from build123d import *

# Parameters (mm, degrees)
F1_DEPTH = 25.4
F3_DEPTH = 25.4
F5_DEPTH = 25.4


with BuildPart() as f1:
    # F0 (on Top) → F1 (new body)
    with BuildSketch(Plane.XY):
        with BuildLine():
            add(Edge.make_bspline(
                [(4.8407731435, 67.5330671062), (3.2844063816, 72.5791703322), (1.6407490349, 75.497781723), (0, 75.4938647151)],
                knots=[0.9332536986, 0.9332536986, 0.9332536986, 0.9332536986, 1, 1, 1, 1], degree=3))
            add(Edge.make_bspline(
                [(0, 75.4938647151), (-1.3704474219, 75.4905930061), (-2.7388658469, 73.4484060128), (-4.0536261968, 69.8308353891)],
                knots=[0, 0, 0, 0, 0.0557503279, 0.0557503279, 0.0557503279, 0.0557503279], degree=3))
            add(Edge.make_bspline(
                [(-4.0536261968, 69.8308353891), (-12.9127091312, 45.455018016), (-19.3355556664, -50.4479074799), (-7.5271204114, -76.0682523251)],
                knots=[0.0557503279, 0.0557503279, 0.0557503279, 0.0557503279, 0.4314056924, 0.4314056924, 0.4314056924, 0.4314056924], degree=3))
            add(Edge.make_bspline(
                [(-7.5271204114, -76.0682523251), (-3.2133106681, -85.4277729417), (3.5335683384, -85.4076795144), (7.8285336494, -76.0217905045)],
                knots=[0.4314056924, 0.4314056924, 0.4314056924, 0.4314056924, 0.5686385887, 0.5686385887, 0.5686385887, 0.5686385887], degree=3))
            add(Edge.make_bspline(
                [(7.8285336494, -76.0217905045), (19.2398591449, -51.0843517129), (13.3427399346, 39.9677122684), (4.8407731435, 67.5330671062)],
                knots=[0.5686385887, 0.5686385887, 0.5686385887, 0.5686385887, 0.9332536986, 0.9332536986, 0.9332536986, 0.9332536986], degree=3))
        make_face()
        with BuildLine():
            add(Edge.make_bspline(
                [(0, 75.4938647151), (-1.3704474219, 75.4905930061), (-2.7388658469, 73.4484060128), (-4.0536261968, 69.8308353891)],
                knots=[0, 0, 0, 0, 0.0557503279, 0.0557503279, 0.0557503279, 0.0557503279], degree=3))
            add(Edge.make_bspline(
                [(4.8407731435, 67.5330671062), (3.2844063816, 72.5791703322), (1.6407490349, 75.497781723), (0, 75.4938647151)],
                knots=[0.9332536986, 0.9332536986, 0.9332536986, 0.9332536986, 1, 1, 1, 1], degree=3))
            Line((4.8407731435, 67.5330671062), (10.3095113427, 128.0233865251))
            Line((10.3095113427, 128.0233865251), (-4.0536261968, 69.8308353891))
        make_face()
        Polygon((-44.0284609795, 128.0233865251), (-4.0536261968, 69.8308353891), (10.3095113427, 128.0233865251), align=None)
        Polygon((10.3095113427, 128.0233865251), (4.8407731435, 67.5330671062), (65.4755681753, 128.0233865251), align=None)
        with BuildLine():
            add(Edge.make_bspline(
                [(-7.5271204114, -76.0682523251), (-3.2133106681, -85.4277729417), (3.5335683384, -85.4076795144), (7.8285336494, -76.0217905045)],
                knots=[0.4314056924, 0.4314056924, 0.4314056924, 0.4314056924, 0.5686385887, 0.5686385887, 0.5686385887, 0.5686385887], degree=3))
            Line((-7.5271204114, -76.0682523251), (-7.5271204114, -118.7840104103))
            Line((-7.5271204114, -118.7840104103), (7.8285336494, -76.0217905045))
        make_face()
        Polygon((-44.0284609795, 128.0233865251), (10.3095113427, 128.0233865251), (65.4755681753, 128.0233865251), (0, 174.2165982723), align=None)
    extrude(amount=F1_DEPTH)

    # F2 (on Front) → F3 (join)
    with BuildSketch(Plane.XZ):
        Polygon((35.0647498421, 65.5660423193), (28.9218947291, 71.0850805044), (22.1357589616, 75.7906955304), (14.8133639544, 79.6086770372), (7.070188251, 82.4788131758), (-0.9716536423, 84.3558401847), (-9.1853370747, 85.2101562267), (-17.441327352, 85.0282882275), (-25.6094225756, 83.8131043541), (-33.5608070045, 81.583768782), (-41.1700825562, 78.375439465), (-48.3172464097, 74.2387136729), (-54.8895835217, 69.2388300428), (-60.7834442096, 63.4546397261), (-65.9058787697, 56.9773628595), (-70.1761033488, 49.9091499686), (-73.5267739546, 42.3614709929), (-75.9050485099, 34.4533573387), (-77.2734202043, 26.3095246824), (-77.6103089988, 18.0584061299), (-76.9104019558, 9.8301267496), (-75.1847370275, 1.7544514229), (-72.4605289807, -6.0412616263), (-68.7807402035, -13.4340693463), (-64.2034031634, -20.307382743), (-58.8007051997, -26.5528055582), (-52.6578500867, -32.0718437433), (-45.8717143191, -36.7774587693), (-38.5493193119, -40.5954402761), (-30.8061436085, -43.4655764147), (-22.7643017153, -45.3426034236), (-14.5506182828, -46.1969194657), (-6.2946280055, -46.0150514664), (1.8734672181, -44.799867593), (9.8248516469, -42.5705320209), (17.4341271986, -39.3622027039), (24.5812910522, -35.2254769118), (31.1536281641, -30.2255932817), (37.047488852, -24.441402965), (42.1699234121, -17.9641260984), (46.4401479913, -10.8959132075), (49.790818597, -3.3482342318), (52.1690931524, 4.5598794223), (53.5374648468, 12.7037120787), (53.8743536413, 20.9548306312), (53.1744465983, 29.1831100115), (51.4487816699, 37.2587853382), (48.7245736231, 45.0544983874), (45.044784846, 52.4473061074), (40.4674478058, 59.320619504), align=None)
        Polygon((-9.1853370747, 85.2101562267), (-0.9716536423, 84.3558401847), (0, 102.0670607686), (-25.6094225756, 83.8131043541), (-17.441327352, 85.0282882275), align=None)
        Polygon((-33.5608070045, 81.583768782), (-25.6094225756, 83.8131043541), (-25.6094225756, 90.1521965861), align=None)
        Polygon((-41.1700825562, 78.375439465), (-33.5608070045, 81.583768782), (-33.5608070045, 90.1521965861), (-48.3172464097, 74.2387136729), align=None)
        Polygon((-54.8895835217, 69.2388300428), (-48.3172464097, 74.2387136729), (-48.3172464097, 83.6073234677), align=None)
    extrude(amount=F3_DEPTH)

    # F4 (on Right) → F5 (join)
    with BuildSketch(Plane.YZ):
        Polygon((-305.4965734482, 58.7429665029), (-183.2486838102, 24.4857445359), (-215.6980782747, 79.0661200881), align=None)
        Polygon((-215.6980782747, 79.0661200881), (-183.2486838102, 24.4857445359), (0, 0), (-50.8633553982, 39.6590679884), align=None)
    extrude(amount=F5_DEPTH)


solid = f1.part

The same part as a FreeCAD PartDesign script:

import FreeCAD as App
import Part
import Sketcher
Q = App.Units.Quantity


def add_polygon(sketch, points):
    """Adds a closed chain of lines whose ends are joined by coincident constraints."""
    first, n = sketch.GeometryCount, len(points)
    for a, b in zip(points, points[1:] + points[:1]):
        sketch.addGeometry(Part.LineSegment(App.Vector(*a, 0), App.Vector(*b, 0)), False)
    for i in range(n):
        sketch.addConstraint(Sketcher.Constraint("Coincident", first + i, 2, first + (i + 1) % n, 1))

doc = App.newDocument("Part")
body = doc.addObject("PartDesign::Body", "Body")

sketch1 = body.newObject("Sketcher::SketchObject", "Sketch")
sketch1.AttachmentSupport = (doc.getObject("XY_Plane"), [""])
sketch1.MapMode = "FlatFace"
sketch1.addGeometry([
    Part.BSplineCurve([App.Vector(-4.053626, 69.830835, 0), App.Vector(-12.912709, 45.455018, 0), App.Vector(-19.335556, -50.447907, 0), App.Vector(-7.52712, -76.068252, 0)], [4, 4], [0.055750328, 0.431405692], False, 3, [1, 1, 1, 1], False),
    Part.LineSegment(App.Vector(-7.52712, -76.068252, 0), App.Vector(-7.52712, -118.78401, 0)),
    Part.LineSegment(App.Vector(-7.52712, -118.78401, 0), App.Vector(7.828534, -76.021791, 0)),
    Part.BSplineCurve([App.Vector(7.828534, -76.021791, 0), App.Vector(19.239859, -51.084352, 0), App.Vector(13.34274, 39.967712, 0), App.Vector(4.840773, 67.533067, 0)], [4, 4], [0.568638589, 0.933253699], False, 3, [1, 1, 1, 1], False),
    Part.LineSegment(App.Vector(4.840773, 67.533067, 0), App.Vector(65.475568, 128.023387, 0)),
    Part.LineSegment(App.Vector(65.475568, 128.023387, 0), App.Vector(0, 174.216598, 0)),
    Part.LineSegment(App.Vector(0, 174.216598, 0), App.Vector(-44.028461, 128.023387, 0)),
    Part.LineSegment(App.Vector(-44.028461, 128.023387, 0), App.Vector(-4.053626, 69.830835, 0)),
], False)
sketch1.addConstraint([
    Sketcher.Constraint("Block", 0),
    Sketcher.Constraint("Block", 3),
    Sketcher.Constraint("Coincident", 0, 2, 1, 1),
    Sketcher.Constraint("Coincident", 1, 2, 2, 1),
    Sketcher.Constraint("Coincident", 2, 2, 3, 1),
    Sketcher.Constraint("Coincident", 3, 2, 4, 1),
    Sketcher.Constraint("Coincident", 4, 2, 5, 1),
    Sketcher.Constraint("Coincident", 5, 2, 6, 1),
    Sketcher.Constraint("Coincident", 6, 2, 7, 1),
    Sketcher.Constraint("Coincident", 7, 2, 0, 1),
    Sketcher.Constraint("Vertical", 1),
    Sketcher.Constraint("PointOnObject", 5, 2, -2),
    Sketcher.Constraint("Horizontal", 4, 2, 6, 2),
    Sketcher.Constraint("DistanceY", 1, 2, 1, 1, 42.715758),
    Sketcher.Constraint("DistanceY", -1, 1, 5, 2, 174.216598),
    Sketcher.Constraint("Distance", 4, 85.648451),
    Sketcher.Constraint("DistanceX", -1, 1, 4, 2, 65.475568),
    Sketcher.Constraint("DistanceX", 6, 2, -1, 1, 44.028461),
])
pad1 = body.newObject("PartDesign::Pad", "Pad")
pad1.Profile = sketch1
pad1.Length = Q("1 in")

sketch2 = body.newObject("Sketcher::SketchObject", "Sketch001")
sketch2.AttachmentSupport = (doc.getObject("XZ_Plane"), [""])
sketch2.MapMode = "FlatFace"
add_polygon(sketch2, [(35.06475, 65.566042), (28.921895, 71.085081), (22.135759, 75.790696), (14.813364, 79.608677), (7.070188, 82.478813), (-0.971654, 84.35584), (0, 102.067061), (-25.609423, 83.813104), (-25.609423, 90.152197), (-33.560807, 81.583769), (-33.560807, 90.152197), (-48.317246, 74.238714), (-48.317246, 83.607323), (-54.889584, 69.23883), (-60.783444, 63.45464), (-65.905879, 56.977363), (-70.176103, 49.90915), (-73.526774, 42.361471), (-75.905049, 34.453357), (-77.27342, 26.309525), (-77.610309, 18.058406), (-76.910402, 9.830127), (-75.184737, 1.754451), (-72.460529, -6.041262), (-68.78074, -13.434069), (-64.203403, -20.307383), (-58.800705, -26.552806), (-52.65785, -32.071844), (-45.871714, -36.777459), (-38.549319, -40.59544), (-30.806144, -43.465576), (-22.764302, -45.342603), (-14.550618, -46.196919), (-6.294628, -46.015051), (1.873467, -44.799868), (9.824852, -42.570532), (17.434127, -39.362203), (24.581291, -35.225477), (31.153628, -30.225593), (37.047489, -24.441403), (42.169923, -17.964126), (46.440148, -10.895913), (49.790819, -3.348234), (52.169093, 4.559879), (53.537465, 12.703712), (53.874354, 20.954831), (53.174447, 29.18311), (51.448782, 37.258785), (48.724574, 45.054498), (45.044785, 52.447306), (40.467448, 59.32062)])
sketch2.addConstraint([
    Sketcher.Constraint("Vertical", 7),
    Sketcher.Constraint("Vertical", 9),
    Sketcher.Constraint("Vertical", 11),
    Sketcher.Constraint("PointOnObject", 5, 2, -2),
    Sketcher.Constraint("Parallel", 0, 26),
    Sketcher.Constraint("Parallel", 1, 27),
    Sketcher.Constraint("Parallel", 2, 28),
    Sketcher.Constraint("Parallel", 3, 29),
    Sketcher.Constraint("Parallel", 4, 30),
    Sketcher.Constraint("Parallel", 13, 38),
    Sketcher.Constraint("Parallel", 14, 39),
    Sketcher.Constraint("Parallel", 15, 40),
    Sketcher.Constraint("Parallel", 16, 41),
    Sketcher.Constraint("Parallel", 17, 42),
    Sketcher.Constraint("Parallel", 18, 43),
    Sketcher.Constraint("Parallel", 19, 44),
    Sketcher.Constraint("Parallel", 20, 45),
    Sketcher.Constraint("Parallel", 21, 46),
    Sketcher.Constraint("Parallel", 22, 47),
    Sketcher.Constraint("Parallel", 23, 48),
    Sketcher.Constraint("Parallel", 24, 49),
    Sketcher.Constraint("Parallel", 25, 50),
    Sketcher.Constraint("Horizontal", 7, 2, 9, 2),
    Sketcher.Constraint("Equal", 0, 1),
    Sketcher.Constraint("Equal", 1, 2),
    Sketcher.Constraint("Equal", 2, 3),
    Sketcher.Constraint("Equal", 3, 4),
    Sketcher.Constraint("Equal", 4, 13),
    Sketcher.Constraint("Equal", 13, 14),
    Sketcher.Constraint("Equal", 14, 15),
    Sketcher.Constraint("Equal", 15, 16),
    Sketcher.Constraint("Equal", 16, 17),
    Sketcher.Constraint("Equal", 17, 18),
    Sketcher.Constraint("Equal", 18, 19),
    Sketcher.Constraint("Equal", 19, 20),
    Sketcher.Constraint("Equal", 20, 21),
    Sketcher.Constraint("Equal", 21, 22),
    Sketcher.Constraint("Equal", 22, 23),
    Sketcher.Constraint("Equal", 23, 24),
    Sketcher.Constraint("Equal", 24, 25),
    Sketcher.Constraint("Equal", 25, 26),
    Sketcher.Constraint("Equal", 26, 27),
    Sketcher.Constraint("Equal", 27, 28),
    Sketcher.Constraint("Equal", 28, 29),
    Sketcher.Constraint("Equal", 29, 30),
    Sketcher.Constraint("Equal", 30, 31),
    Sketcher.Constraint("Equal", 31, 32),
    Sketcher.Constraint("Equal", 32, 33),
    Sketcher.Constraint("Equal", 33, 34),
    Sketcher.Constraint("Equal", 34, 35),
    Sketcher.Constraint("Equal", 35, 36),
    Sketcher.Constraint("Equal", 36, 37),
    Sketcher.Constraint("Equal", 37, 38),
    Sketcher.Constraint("Equal", 38, 39),
    Sketcher.Constraint("Equal", 39, 40),
    Sketcher.Constraint("Equal", 40, 41),
    Sketcher.Constraint("Equal", 41, 42),
    Sketcher.Constraint("Equal", 42, 43),
    Sketcher.Constraint("Equal", 43, 44),
    Sketcher.Constraint("Equal", 44, 45),
    Sketcher.Constraint("Equal", 45, 46),
    Sketcher.Constraint("Equal", 46, 47),
    Sketcher.Constraint("Equal", 47, 48),
    Sketcher.Constraint("Equal", 48, 49),
    Sketcher.Constraint("Equal", 49, 50),
    Sketcher.Constraint("DistanceY", -1, 1, 2, 2, Q("3.1341999 in")),
    Sketcher.Constraint("DistanceY", 11, 1, 11, 2, 9.36861),
    Sketcher.Constraint("DistanceX", 20, 2, -1, 1, 76.910402),
    Sketcher.Constraint("DistanceX", 30, 2, -1, 1, 22.764302),
    Sketcher.Constraint("DistanceY", -1, 1, 47, 2, 45.054498),
    Sketcher.Constraint("DistanceX", 20, 2, 15, 2, 6.734299),
    Sketcher.Constraint("DistanceX", 20, 2, 24, 2, 12.706999),
    Sketcher.Constraint("DistanceX", 28, 2, 31, 2, 23.998701),
    Sketcher.Constraint("DistanceY", 30, 2, 35, 2, 5.980401),
    Sketcher.Constraint("DistanceX", 35, 2, 37, 2, 13.719501),
    Sketcher.Constraint("DistanceY", 35, 2, 38, 2, 14.9208),
    Sketcher.Constraint("Distance", 12, 15.800292),
    Sketcher.Constraint("DistanceY", 7, 1, 7, 2, 6.339092),
    Sketcher.Constraint("DistanceY", 9, 1, 9, 2, 8.568428),
    Sketcher.Constraint("DistanceY", -1, 1, 0, 2, 71.085081),
    Sketcher.Constraint("DistanceX", -1, 1, 1, 2, 22.135759),
    Sketcher.Constraint("DistanceX", -1, 1, 3, 2, 7.070188),
    Sketcher.Constraint("DistanceY", -1, 1, 4, 2, 84.35584),
    Sketcher.Constraint("DistanceY", -1, 1, 5, 2, 102.067061),
    Sketcher.Constraint("DistanceY", -1, 1, 8, 2, 81.583769),
    Sketcher.Constraint("DistanceY", -1, 1, 12, 2, 69.23883),
    Sketcher.Constraint("DistanceX", 14, 2, -1, 1, 65.905879),
    Sketcher.Constraint("DistanceY", -1, 1, 15, 2, 49.90915),
    Sketcher.Constraint("DistanceY", -1, 1, 16, 2, 42.361471),
    Sketcher.Constraint("DistanceX", 17, 2, -1, 1, 75.905049),
    Sketcher.Constraint("DistanceX", 18, 2, -1, 1, 77.27342),
    Sketcher.Constraint("DistanceX", 19, 2, -1, 1, 77.610309),
    Sketcher.Constraint("DistanceY", -1, 1, 21, 2, 1.754451),
    Sketcher.Constraint("DistanceX", 22, 2, -1, 1, 72.460529),
    Sketcher.Constraint("DistanceY", 22, 2, -1, 1, 6.041262),
    Sketcher.Constraint("DistanceX", 23, 2, -1, 1, 68.78074),
    Sketcher.Constraint("DistanceX", 26, 2, -1, 1, 52.65785),
    Sketcher.Constraint("DistanceX", 32, 2, -1, 1, 6.294628),
    Sketcher.Constraint("DistanceX", -1, 1, 34, 2, 9.824852),
    Sketcher.Constraint("DistanceX", 6, 2, 4, 2, 24.637769),
    Sketcher.Constraint("DistanceX", 10, 2, 8, 2, 14.756439),
    Sketcher.Constraint("DistanceY", 10, 2, 6, 2, 9.574391),
])
pad2 = body.newObject("PartDesign::Pad", "Pad001")
pad2.Profile = sketch2
pad2.Length = Q("1 in")

sketch3 = body.newObject("Sketcher::SketchObject", "Sketch002")
sketch3.AttachmentSupport = (doc.getObject("YZ_Plane"), [""])
sketch3.MapMode = "FlatFace"
add_polygon(sketch3, [(-305, 59), (-183, 24), (0, 0), (-51, 40), (-216, 79)])
sketch3.addConstraint([
    Sketcher.Constraint("Coincident", 1, 2, -1, 1),
    Sketcher.Constraint("DistanceY", 2, 2, 4, 2, 19.083899),
    Sketcher.Constraint("Distance", 2, 64.497462),
    Sketcher.Constraint("Distance", 4, 92.069541),
    Sketcher.Constraint("DistanceX", 3, 2, -1, 1, 215.698078),
    Sketcher.Constraint("DistanceY", -1, 1, 3, 2, 79.06612),
    Sketcher.Constraint("DistanceX", 0, 2, 2, 2, 132.385328),
    Sketcher.Constraint("DistanceX", 4, 2, 0, 2, 122.24789),
    Sketcher.Constraint("DistanceY", 0, 2, 4, 2, 34.257222),
])
pad3 = body.newObject("PartDesign::Pad", "Pad002")
pad3.Profile = sketch3
pad3.Length = Q("1 in")

doc.recompute()
